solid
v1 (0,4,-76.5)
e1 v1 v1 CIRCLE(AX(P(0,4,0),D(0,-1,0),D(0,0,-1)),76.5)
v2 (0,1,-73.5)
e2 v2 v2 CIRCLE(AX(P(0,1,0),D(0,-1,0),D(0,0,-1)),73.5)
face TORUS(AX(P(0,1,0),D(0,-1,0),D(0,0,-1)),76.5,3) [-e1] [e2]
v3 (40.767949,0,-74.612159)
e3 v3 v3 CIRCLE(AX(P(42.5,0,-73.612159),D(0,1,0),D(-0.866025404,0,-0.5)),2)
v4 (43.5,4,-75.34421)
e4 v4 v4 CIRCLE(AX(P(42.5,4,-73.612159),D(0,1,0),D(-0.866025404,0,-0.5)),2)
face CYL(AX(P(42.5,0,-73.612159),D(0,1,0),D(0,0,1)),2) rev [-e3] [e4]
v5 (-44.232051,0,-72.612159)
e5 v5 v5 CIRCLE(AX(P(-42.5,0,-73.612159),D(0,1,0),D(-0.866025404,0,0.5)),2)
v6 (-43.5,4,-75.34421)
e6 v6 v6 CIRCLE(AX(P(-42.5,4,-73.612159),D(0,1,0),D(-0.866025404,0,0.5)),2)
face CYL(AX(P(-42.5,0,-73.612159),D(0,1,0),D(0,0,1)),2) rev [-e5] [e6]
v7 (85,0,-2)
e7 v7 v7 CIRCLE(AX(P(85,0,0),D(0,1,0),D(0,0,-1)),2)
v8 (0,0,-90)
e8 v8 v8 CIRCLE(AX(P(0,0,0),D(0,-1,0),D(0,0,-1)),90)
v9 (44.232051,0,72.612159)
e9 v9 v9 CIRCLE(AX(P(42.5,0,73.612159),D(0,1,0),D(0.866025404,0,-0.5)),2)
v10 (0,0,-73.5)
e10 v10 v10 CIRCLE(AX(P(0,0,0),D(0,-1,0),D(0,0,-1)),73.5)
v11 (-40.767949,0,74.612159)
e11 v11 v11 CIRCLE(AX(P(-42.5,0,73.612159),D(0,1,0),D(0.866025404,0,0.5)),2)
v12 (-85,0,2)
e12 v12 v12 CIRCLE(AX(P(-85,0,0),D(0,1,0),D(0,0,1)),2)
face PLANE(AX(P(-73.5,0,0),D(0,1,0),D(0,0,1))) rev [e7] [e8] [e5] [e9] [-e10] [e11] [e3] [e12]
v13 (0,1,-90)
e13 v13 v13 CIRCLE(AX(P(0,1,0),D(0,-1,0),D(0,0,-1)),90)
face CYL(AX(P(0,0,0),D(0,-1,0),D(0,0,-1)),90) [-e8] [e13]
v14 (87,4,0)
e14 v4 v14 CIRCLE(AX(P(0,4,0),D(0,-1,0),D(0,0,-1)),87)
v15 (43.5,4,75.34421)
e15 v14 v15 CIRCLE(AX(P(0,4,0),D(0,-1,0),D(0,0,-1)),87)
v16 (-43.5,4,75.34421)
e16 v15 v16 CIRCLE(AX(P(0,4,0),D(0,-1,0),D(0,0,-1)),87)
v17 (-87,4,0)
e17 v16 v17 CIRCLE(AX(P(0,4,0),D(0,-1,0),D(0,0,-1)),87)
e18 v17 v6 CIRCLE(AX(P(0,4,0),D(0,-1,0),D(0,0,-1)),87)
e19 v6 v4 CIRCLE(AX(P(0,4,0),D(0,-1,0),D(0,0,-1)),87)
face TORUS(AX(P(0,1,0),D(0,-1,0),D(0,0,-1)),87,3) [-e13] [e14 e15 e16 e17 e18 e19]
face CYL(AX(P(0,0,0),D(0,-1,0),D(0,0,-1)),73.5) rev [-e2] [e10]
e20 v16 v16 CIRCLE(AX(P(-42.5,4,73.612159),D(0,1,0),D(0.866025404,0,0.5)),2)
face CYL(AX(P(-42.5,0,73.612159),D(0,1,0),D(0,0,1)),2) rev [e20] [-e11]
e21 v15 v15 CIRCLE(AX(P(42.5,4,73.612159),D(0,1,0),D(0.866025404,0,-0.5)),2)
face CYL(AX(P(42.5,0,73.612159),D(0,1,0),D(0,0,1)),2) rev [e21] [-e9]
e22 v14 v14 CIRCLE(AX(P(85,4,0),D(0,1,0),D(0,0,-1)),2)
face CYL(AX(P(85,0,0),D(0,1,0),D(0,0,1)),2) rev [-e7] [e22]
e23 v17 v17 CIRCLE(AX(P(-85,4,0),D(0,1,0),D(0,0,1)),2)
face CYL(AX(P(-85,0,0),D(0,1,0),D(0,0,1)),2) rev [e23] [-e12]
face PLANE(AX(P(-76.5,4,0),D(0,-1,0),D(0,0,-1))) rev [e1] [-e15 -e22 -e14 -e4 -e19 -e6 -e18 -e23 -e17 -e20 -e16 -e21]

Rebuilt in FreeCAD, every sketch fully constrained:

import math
import FreeCAD as App
import Part
import Sketcher
from FreeCAD import Vector
Q = App.Units.Quantity

doc = App.newDocument("Part")
body = doc.addObject("PartDesign::Body", "Body")

sketch1 = body.newObject("Sketcher::SketchObject", "Sketch")
sketch1.AttachmentSupport = (doc.getObject("XY_Plane"), [""])
sketch1.MapMode = "FlatFace"
sketch1.addGeometry(Part.LineSegment(Vector(-90, 0, 0), Vector(-73.5, 0, 0)), False)
sketch1.addGeometry(Part.LineSegment(Vector(-73.5, 0, 0), Vector(-73.5, 1, 0)), False)
sketch1.addGeometry(Part.ArcOfCircle(Part.Circle(Vector(-76.5, 1, 0), Vector(0, 0, 1), 3), math.radians(0), math.radians(90)), False)
sketch1.addGeometry(Part.LineSegment(Vector(-76.5, 4, 0), Vector(-87, 4, 0)), False)
sketch1.addGeometry(Part.ArcOfCircle(Part.Circle(Vector(-87, 1, 0), Vector(0, 0, 1), 3), math.radians(90), math.radians(180)), False)
sketch1.addGeometry(Part.LineSegment(Vector(-90, 1, 0), Vector(-90, 0, 0)), False)
sketch1.addConstraint(Sketcher.Constraint("Coincident", 0, 2, 1, 1))
sketch1.addConstraint(Sketcher.Constraint("Tangent", 1, 2, 2, 1))
sketch1.addConstraint(Sketcher.Constraint("Tangent", 2, 2, 3, 1))
sketch1.addConstraint(Sketcher.Constraint("Tangent", 3, 2, 4, 1))
sketch1.addConstraint(Sketcher.Constraint("Tangent", 4, 2, 5, 1))
sketch1.addConstraint(Sketcher.Constraint("Coincident", 5, 2, 0, 1))
sketch1.addConstraint(Sketcher.Constraint("Horizontal", 0))
sketch1.addConstraint(Sketcher.Constraint("Vertical", 1))
sketch1.addConstraint(Sketcher.Constraint("Horizontal", 3))
sketch1.addConstraint(Sketcher.Constraint("Vertical", 5))
sketch1.addConstraint(Sketcher.Constraint("Equal", 2, 4))
sketch1.addConstraint(Sketcher.Constraint("PointOnObject", 0, 2, -1))
sketch1.addConstraint(Sketcher.Constraint("Radius", 2, Q("3 mm")))
sketch1.addConstraint(Sketcher.Constraint("DistanceY", 1, 1, 1, 2, Q("1 mm")))
sketch1.addConstraint(Sketcher.Constraint("DistanceX", 0, 1, 0, 2, Q("16.5 mm")))
sketch1.addConstraint(Sketcher.Constraint("DistanceX", 4, 3, -1, 1, Q("87 mm")))
revolution = body.newObject("PartDesign::Revolution", "Revolution")
revolution.Profile = sketch1
revolution.ReferenceAxis = (sketch1, ["V_Axis"])
revolution.Angle = 360

sketch2 = body.newObject("Sketcher::SketchObject", "Sketch001")
sketch2.AttachmentSupport = (doc.getObject("XZ_Plane"), [""])
sketch2.MapMode = "FlatFace"
sketch2.AttachmentOffset = App.Placement(Vector(0, 0, -4), App.Rotation())
sketch2.addGeometry(Part.Circle(Vector(-85, 0, 0), Vector(0, 0, 1), 2), False)
sketch2.addConstraint(Sketcher.Constraint("PointOnObject", 0, 3, -1))
sketch2.addConstraint(Sketcher.Constraint("Diameter", 0, Q("4 mm")))
sketch2.addConstraint(Sketcher.Constraint("DistanceX", 0, 3, -1, 1, Q("85 mm")))
pocket1 = body.newObject("PartDesign::Pocket", "Pocket")
pocket1.Profile = sketch2
pocket1.Type = "ThroughAll"
pocket1.Reversed = True
doc.recompute()

polarpattern = body.newObject("PartDesign::PolarPattern", "PolarPattern")
polarpattern.Originals = [pocket1]
polarpattern.Axis = (doc.getObject("Y_Axis"), [""])
polarpattern.Angle = 360
polarpattern.Occurrences = 6
body.Tip = polarpattern

doc.recompute()
